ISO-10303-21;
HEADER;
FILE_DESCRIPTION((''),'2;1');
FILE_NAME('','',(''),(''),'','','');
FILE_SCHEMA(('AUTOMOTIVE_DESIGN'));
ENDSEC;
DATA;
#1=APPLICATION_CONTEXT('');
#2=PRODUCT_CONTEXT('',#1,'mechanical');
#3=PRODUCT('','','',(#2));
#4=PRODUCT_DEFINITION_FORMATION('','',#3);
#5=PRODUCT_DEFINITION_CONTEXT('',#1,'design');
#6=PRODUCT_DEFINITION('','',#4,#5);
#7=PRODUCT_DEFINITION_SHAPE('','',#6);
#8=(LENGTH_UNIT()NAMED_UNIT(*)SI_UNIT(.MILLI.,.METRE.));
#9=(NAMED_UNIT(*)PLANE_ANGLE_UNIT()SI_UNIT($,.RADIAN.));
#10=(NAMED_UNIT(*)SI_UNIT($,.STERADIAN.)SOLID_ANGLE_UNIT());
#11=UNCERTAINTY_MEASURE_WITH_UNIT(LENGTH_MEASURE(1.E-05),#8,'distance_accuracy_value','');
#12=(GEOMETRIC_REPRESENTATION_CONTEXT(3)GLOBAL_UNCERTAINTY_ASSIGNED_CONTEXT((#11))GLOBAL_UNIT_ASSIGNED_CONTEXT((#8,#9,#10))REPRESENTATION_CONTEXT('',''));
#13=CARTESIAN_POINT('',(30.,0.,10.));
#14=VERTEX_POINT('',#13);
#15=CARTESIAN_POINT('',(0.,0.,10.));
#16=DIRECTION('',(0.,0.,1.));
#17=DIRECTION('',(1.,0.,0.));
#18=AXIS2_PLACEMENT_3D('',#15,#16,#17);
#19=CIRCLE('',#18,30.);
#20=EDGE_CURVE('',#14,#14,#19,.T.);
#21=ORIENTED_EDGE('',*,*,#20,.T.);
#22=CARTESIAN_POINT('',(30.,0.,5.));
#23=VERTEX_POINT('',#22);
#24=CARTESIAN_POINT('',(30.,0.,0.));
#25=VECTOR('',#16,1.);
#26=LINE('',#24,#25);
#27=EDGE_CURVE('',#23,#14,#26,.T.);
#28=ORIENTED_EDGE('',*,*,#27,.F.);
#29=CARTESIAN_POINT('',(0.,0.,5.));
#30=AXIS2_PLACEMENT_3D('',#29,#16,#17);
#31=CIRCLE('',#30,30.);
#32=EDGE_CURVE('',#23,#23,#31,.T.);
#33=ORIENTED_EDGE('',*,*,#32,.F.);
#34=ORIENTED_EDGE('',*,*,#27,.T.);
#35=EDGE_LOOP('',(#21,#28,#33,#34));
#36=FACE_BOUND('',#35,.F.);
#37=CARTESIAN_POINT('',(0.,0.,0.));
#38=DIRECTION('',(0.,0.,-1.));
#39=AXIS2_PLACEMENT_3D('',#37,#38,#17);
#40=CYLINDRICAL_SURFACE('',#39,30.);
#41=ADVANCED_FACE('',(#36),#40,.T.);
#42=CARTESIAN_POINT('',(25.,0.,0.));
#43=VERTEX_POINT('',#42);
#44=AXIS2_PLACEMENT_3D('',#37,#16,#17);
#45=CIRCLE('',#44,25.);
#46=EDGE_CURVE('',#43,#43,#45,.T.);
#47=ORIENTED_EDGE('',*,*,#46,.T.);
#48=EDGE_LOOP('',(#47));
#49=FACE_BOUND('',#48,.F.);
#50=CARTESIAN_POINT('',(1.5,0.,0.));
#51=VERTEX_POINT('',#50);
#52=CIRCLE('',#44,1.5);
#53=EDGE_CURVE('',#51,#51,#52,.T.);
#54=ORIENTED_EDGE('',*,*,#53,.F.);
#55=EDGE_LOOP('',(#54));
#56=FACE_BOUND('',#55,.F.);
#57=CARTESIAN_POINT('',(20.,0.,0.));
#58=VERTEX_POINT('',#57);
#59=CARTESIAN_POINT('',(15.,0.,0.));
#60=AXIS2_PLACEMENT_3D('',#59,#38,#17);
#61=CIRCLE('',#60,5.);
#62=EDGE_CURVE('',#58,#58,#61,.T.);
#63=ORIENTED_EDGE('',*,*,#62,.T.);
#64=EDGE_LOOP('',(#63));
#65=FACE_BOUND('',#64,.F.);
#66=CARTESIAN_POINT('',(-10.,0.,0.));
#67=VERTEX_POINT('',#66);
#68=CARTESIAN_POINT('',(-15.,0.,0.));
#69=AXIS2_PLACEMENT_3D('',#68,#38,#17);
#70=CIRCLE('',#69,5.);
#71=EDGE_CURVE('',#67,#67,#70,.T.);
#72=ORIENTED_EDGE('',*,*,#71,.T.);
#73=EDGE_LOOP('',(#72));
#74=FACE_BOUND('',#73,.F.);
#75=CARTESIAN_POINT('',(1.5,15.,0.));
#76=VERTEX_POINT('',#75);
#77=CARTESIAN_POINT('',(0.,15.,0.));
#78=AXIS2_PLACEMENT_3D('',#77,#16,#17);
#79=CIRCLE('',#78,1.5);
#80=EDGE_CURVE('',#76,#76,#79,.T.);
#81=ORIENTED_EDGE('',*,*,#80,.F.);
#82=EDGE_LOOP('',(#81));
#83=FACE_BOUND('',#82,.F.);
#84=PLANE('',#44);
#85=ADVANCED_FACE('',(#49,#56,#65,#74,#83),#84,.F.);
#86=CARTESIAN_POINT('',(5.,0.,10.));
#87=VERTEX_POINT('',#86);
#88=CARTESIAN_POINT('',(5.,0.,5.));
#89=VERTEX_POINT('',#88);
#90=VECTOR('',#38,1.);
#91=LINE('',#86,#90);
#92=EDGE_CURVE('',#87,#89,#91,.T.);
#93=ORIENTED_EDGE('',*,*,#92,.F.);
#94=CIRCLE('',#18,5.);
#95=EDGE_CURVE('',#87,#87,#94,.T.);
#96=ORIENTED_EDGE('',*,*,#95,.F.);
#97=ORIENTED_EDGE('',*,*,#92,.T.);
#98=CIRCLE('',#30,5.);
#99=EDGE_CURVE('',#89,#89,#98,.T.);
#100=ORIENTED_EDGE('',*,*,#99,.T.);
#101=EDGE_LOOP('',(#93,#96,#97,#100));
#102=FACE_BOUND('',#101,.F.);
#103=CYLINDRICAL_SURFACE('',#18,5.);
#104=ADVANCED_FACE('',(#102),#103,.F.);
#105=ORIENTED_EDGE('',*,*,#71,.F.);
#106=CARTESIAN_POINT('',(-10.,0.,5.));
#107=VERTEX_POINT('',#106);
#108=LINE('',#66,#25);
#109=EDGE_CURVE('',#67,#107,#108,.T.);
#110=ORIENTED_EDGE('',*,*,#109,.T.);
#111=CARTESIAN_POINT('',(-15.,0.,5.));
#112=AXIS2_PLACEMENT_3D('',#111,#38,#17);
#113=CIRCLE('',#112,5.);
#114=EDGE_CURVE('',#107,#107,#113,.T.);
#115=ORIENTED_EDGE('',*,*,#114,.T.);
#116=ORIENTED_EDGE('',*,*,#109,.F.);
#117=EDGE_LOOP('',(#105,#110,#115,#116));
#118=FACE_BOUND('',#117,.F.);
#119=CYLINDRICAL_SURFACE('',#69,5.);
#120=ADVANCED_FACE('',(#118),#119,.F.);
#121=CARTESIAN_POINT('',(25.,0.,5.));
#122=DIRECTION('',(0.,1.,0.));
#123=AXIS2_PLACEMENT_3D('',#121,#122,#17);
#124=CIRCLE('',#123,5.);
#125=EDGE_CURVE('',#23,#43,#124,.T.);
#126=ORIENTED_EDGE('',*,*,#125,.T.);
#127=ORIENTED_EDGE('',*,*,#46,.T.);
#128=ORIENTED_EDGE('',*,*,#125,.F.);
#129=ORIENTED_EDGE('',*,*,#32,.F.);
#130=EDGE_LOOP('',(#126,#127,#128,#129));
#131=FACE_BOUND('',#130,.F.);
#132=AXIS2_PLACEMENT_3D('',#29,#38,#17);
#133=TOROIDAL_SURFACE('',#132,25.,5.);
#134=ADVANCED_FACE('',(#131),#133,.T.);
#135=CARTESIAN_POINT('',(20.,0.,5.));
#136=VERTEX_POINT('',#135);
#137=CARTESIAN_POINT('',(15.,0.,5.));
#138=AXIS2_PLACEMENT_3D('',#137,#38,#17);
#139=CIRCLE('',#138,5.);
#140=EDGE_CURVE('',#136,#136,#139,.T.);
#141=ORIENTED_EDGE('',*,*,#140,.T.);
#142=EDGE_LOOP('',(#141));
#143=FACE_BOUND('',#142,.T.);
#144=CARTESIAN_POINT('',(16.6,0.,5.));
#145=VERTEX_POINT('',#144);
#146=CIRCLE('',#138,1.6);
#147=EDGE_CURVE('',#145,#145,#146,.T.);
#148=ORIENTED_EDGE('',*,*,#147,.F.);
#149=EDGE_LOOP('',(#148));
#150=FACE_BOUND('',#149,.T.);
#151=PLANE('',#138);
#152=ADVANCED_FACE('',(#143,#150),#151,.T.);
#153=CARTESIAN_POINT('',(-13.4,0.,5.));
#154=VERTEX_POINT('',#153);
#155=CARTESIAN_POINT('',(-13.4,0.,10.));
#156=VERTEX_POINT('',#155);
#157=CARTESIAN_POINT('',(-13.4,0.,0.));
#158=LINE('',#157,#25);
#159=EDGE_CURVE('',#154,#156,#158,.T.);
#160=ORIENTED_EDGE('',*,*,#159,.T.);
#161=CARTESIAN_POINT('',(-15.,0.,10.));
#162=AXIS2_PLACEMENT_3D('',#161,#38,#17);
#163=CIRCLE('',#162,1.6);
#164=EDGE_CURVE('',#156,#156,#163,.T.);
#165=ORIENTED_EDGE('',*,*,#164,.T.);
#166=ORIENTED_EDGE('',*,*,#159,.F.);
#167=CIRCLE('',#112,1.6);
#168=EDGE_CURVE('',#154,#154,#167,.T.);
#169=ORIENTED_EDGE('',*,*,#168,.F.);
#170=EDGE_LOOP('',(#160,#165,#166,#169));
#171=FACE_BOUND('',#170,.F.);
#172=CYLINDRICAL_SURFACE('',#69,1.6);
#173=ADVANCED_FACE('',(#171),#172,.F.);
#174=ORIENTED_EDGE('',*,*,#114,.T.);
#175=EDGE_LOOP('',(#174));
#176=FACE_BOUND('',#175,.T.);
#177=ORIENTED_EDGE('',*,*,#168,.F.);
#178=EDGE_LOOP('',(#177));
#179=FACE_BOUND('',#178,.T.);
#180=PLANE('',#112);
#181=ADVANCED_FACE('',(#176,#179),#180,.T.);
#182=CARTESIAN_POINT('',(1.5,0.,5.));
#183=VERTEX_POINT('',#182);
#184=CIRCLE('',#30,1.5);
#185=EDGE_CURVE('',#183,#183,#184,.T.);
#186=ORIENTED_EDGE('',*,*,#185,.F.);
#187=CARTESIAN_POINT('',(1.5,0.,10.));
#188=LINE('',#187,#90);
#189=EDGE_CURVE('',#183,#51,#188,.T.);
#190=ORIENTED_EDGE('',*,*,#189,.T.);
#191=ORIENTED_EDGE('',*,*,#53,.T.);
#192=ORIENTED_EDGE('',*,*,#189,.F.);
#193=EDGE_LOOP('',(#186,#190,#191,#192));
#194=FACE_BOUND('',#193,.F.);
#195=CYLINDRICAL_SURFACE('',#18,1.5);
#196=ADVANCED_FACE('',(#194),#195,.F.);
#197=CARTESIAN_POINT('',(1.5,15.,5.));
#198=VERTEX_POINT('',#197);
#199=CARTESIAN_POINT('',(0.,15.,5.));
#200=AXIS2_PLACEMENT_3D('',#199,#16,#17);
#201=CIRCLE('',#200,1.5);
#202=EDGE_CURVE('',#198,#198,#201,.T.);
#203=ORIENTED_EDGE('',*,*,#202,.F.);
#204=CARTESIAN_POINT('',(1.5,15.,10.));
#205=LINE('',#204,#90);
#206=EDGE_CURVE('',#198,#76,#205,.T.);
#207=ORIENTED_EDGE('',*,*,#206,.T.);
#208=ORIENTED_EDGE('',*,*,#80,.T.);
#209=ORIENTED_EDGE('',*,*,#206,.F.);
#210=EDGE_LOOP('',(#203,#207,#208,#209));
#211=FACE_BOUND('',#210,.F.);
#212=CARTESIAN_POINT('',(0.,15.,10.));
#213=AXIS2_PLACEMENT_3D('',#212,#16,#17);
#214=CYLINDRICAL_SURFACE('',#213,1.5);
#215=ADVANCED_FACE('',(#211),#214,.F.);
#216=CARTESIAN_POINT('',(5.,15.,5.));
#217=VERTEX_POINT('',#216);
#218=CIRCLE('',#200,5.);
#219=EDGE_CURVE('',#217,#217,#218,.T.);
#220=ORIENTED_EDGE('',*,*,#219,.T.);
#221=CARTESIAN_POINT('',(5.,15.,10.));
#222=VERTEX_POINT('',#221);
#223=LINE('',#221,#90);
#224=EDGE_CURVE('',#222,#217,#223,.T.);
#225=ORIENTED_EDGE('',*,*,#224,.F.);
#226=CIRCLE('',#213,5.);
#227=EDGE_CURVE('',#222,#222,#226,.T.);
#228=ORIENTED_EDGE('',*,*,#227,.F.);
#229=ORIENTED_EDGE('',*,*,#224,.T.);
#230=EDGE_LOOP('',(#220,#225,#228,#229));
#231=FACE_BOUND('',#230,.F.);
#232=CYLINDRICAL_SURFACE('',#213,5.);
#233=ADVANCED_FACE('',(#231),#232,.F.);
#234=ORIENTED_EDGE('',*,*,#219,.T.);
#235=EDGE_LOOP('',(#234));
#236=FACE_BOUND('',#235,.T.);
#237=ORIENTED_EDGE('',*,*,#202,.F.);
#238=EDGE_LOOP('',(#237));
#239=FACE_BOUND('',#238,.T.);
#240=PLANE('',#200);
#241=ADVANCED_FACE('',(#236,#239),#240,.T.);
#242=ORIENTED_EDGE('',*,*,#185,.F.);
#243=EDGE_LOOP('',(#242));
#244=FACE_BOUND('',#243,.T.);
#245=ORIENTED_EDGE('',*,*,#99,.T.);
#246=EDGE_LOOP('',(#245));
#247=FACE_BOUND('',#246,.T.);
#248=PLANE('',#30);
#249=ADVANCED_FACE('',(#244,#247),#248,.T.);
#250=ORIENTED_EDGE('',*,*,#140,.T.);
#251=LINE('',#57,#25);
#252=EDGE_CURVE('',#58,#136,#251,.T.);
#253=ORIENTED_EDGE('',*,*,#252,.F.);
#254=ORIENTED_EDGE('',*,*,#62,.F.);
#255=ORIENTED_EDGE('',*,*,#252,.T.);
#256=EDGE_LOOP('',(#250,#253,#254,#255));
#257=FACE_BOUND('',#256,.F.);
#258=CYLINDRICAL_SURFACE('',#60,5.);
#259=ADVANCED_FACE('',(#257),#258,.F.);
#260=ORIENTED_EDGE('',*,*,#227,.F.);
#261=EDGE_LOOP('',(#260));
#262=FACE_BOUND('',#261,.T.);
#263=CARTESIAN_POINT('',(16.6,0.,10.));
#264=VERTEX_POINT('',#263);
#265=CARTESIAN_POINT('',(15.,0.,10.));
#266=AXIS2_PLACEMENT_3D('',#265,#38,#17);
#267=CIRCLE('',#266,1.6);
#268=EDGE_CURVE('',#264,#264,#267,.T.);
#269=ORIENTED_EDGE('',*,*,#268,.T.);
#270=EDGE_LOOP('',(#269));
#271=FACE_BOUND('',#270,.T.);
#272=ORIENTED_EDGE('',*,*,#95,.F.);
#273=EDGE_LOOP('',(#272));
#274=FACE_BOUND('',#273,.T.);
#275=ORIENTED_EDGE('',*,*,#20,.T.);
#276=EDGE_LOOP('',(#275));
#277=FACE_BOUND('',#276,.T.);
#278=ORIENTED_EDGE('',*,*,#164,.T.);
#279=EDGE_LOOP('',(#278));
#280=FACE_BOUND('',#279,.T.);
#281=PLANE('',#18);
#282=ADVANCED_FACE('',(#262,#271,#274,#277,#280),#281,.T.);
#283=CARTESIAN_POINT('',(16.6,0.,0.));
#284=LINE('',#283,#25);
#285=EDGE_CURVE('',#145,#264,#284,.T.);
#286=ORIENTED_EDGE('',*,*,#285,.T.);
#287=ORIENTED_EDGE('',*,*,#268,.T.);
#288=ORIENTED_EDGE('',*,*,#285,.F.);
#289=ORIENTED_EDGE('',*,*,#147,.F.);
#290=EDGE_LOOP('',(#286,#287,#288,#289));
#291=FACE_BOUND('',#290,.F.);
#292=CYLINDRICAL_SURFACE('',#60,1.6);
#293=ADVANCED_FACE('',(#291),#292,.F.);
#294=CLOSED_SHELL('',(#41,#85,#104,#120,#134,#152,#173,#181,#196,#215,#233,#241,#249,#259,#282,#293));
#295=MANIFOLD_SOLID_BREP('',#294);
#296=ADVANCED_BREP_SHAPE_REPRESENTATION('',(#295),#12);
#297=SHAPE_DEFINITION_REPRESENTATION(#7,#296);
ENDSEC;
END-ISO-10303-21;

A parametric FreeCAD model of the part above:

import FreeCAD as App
import Part
import Sketcher
Q = App.Units.Quantity


def edges_at(feature, points):
    """Names of the edges that pass closest to the given points."""
    edges = feature.Shape.Edges
    near = lambda p: min(range(len(edges)), key=lambda i: edges[i].distToShape(Part.Vertex(*p))[0])
    return sorted({f"Edge{near(p) + 1}" for p in points})

doc = App.newDocument("Part")
body = doc.addObject("PartDesign::Body", "Body")

sketch1 = doc.addObject("Sketcher::SketchObject", "Sketch")
body.addObject(sketch1)
sketch1.AttachmentSupport = (doc.XY_Plane, [""])
sketch1.MapMode = "FlatFace"
sketch1.addGeometry(Part.Circle(App.Vector(0, 0, 0), App.Vector(0, 0, 1), 30), False)
sketch1.addConstraint(Sketcher.Constraint("Coincident", 0, 3, -1, 1))
sketch1.addConstraint(Sketcher.Constraint("Diameter", 0, Q("60 mm")))
pad1 = doc.addObject("PartDesign::Pad", "Pad")
body.addObject(pad1)
pad1.Profile = sketch1
pad1.Length = 10

sketch2 = doc.addObject("Sketcher::SketchObject", "Sketch001")
body.addObject(sketch2)
sketch2.AttachmentSupport = (doc.XY_Plane, [""])
sketch2.MapMode = "FlatFace"
sketch2.AttachmentOffset = App.Placement(App.Vector(0, 0, 10), App.Rotation())
sketch2.addGeometry(Part.Circle(App.Vector(0, 0, 0), App.Vector(0, 0, 1), 1.5), False)
sketch2.addGeometry(Part.Circle(App.Vector(0, 15, 0), App.Vector(0, 0, 1), 1.5), False)
sketch2.addConstraint(Sketcher.Constraint("Coincident", 0, 3, -1, 1))
sketch2.addConstraint(Sketcher.Constraint("Equal", 0, 1))
sketch2.addConstraint(Sketcher.Constraint("PointOnObject", 1, 3, -2))
sketch2.addConstraint(Sketcher.Constraint("Diameter", 0, Q("3 mm")))
sketch2.addConstraint(Sketcher.Constraint("DistanceY", -1, 1, 1, 3, Q("15 mm")))
pocket1 = doc.addObject("PartDesign::Pocket", "Pocket")
body.addObject(pocket1)
pocket1.Profile = sketch2
pocket1.Type = "ThroughAll"

sketch3 = doc.addObject("Sketcher::SketchObject", "Sketch002")
body.addObject(sketch3)
sketch3.AttachmentSupport = (doc.XY_Plane, [""])
sketch3.MapMode = "FlatFace"
sketch3.AttachmentOffset = App.Placement(App.Vector(0, 0, 10), App.Rotation())
sketch3.addGeometry(Part.Circle(App.Vector(0, 15, 0), App.Vector(0, 0, 1), 5), False)
sketch3.addGeometry(Part.Circle(App.Vector(0, 0, 0), App.Vector(0, 0, 1), 5), False)
sketch3.addConstraint(Sketcher.Constraint("Coincident", 1, 3, -1, 1))
sketch3.addConstraint(Sketcher.Constraint("Equal", 0, 1))
sketch3.addConstraint(Sketcher.Constraint("PointOnObject", 0, 3, -2))
sketch3.addConstraint(Sketcher.Constraint("Diameter", 0, Q("10 mm")))
sketch3.addConstraint(Sketcher.Constraint("DistanceY", -1, 1, 0, 3, Q("15 mm")))
pocket2 = doc.addObject("PartDesign::Pocket", "Pocket001")
body.addObject(pocket2)
pocket2.Profile = sketch3
pocket2.Length = 5

sketch4 = doc.addObject("Sketcher::SketchObject", "Sketch003")
body.addObject(sketch4)
sketch4.AttachmentSupport = (doc.XY_Plane, [""])
sketch4.MapMode = "FlatFace"
sketch4.addGeometry(Part.Circle(App.Vector(-15, 0, 0), App.Vector(0, 0, 1), 1.6), False)
sketch4.addGeometry(Part.Circle(App.Vector(15, 0, 0), App.Vector(0, 0, 1), 1.6), False)
sketch4.addConstraint(Sketcher.Constraint("Equal", 0, 1))
sketch4.addConstraint(Sketcher.Constraint("Symmetric", 0, 3, 1, 3, -1, 1))
sketch4.addConstraint(Sketcher.Constraint("PointOnObject", 0, 3, -1))
sketch4.addConstraint(Sketcher.Constraint("Diameter", 0, Q("3.2 mm")))
sketch4.addConstraint(Sketcher.Constraint("DistanceX", 0, 3, -1, 1, Q("15 mm")))
pocket3 = doc.addObject("PartDesign::Pocket", "Pocket002")
body.addObject(pocket3)
pocket3.Profile = sketch4
pocket3.Type = "ThroughAll"
pocket3.Reversed = True

sketch5 = doc.addObject("Sketcher::SketchObject", "Sketch004")
body.addObject(sketch5)
sketch5.AttachmentSupport = (doc.XY_Plane, [""])
sketch5.MapMode = "FlatFace"
sketch5.addGeometry(Part.Circle(App.Vector(-15, 0, 0), App.Vector(0, 0, 1), 5), False)
sketch5.addGeometry(Part.Circle(App.Vector(15, 0, 0), App.Vector(0, 0, 1), 5), False)
sketch5.addConstraint(Sketcher.Constraint("Equal", 0, 1))
sketch5.addConstraint(Sketcher.Constraint("Symmetric", 0, 3, 1, 3, -1, 1))
sketch5.addConstraint(Sketcher.Constraint("PointOnObject", 0, 3, -1))
sketch5.addConstraint(Sketcher.Constraint("Diameter", 0, Q("10 mm")))
sketch5.addConstraint(Sketcher.Constraint("DistanceX", 0, 3, -1, 1, Q("15 mm")))
pocket4 = doc.addObject("PartDesign::Pocket", "Pocket003")
body.addObject(pocket4)
pocket4.Profile = sketch5
pocket4.Length = 5
pocket4.Reversed = True
doc.recompute()

fillet = doc.addObject("PartDesign::Fillet", "Fillet")
body.addObject(fillet)
fillet.Base = (pocket4, edges_at(pocket4, [(-30, 0, 0)]))
fillet.Radius = 5

doc.recompute()
